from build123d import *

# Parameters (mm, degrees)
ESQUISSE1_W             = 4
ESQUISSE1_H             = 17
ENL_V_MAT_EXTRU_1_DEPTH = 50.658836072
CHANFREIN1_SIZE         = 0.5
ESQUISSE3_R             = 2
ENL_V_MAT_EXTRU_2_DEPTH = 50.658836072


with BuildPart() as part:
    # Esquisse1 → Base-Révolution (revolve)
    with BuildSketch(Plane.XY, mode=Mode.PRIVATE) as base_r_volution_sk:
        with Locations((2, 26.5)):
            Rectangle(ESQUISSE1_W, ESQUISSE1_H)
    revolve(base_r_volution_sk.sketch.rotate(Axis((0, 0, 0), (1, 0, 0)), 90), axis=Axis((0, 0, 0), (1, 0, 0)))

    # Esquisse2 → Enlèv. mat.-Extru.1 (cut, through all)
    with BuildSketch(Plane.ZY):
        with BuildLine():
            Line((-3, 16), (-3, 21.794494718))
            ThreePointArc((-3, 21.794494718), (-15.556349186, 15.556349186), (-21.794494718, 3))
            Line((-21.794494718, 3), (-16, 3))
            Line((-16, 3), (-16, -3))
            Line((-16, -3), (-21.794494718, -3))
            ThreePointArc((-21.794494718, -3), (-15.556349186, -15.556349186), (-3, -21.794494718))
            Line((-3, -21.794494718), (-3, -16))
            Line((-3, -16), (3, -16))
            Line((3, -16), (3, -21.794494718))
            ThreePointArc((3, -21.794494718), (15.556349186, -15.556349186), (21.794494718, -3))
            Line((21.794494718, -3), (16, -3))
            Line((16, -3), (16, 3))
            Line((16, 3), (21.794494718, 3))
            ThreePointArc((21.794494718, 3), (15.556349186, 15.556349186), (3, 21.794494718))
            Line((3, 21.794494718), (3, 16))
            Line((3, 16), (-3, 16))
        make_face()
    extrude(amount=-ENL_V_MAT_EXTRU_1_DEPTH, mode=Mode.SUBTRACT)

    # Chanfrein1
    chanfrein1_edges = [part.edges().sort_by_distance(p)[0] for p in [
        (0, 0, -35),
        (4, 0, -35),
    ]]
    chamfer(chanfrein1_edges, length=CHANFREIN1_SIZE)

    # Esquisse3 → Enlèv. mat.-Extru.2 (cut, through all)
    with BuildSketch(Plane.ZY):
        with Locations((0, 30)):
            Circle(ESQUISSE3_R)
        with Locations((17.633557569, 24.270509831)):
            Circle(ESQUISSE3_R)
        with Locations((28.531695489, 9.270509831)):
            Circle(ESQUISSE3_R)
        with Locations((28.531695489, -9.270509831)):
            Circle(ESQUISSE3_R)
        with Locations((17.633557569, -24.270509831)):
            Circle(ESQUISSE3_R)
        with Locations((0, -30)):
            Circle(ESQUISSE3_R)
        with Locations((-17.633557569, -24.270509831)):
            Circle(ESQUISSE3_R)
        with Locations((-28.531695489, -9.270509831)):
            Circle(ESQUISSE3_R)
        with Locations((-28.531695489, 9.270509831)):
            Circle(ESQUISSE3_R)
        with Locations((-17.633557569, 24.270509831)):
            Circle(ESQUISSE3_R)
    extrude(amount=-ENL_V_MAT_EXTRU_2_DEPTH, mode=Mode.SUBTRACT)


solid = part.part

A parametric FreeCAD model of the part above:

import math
import FreeCAD as App
import Part
import Sketcher

V = App.Vector
Q = App.Units.Quantity


def edges_at(feature, points):
    """Names of the edges that pass closest to the given points."""
    edges = feature.Shape.Edges
    near = lambda p: min(range(len(edges)), key=lambda i: edges[i].distToShape(Part.Vertex(*p))[0])
    return sorted({f"Edge{near(p) + 1}" for p in points})

doc = App.newDocument("Part")
params = doc.addObject("Spreadsheet::Sheet", "Params")
for row, (alias, value) in enumerate([
    ("sketch1_width", "4 mm"),
    ("sketch1_height", "17 mm"),
    ("revolution_angle", "360 deg"),
    ("sketch2_radius", "22 mm"),
    ("sketch2_width", "6 mm"),
    ("chamfer_size", "0.5 mm"),
    ("sketch3_diameter", "4 mm"),
], start=1):
    params.set(f"A{row}", alias)
    params.set(f"B{row}", "=" + value)
    params.setAlias(f"B{row}", alias)

body = doc.addObject("PartDesign::Body", "Body")

# Sketch on XY plane
sketch1 = doc.addObject("Sketcher::SketchObject", "Sketch")
body.addObject(sketch1)
sketch1.AttachmentSupport = (doc.XY_Plane, [""])
sketch1.MapMode = "FlatFace"
sketch1.addGeometry(Part.LineSegment(V(0, 35, 0), V(0, 18, 0)), False)
sketch1.addGeometry(Part.LineSegment(V(0, 18, 0), V(4, 18, 0)), False)
sketch1.addGeometry(Part.LineSegment(V(4, 18, 0), V(4, 35, 0)), False)
sketch1.addGeometry(Part.LineSegment(V(4, 35, 0), V(0, 35, 0)), False)
sketch1.addConstraint(Sketcher.Constraint("Coincident", 0, 2, 1, 1))
sketch1.addConstraint(Sketcher.Constraint("Coincident", 1, 2, 2, 1))
sketch1.addConstraint(Sketcher.Constraint("Coincident", 2, 2, 3, 1))
sketch1.addConstraint(Sketcher.Constraint("Coincident", 3, 2, 0, 1))
sketch1.addConstraint(Sketcher.Constraint("Vertical", 0))
sketch1.addConstraint(Sketcher.Constraint("Horizontal", 1))
sketch1.addConstraint(Sketcher.Constraint("Vertical", 2))
sketch1.addConstraint(Sketcher.Constraint("Horizontal", 3))
sketch1.addConstraint(Sketcher.Constraint("PointOnObject", 0, 2, -2))
sketch1.addConstraint(Sketcher.Constraint("DistanceX", 1, 1, 1, 2, Q("4 mm")))
sketch1.addConstraint(Sketcher.Constraint("DistanceY", 0, 2, 0, 1, Q("17 mm")))
sketch1.addConstraint(Sketcher.Constraint("DistanceY", -1, 1, 0, 2, Q("18 mm")))
sketch1.setExpression("Constraints[9]", "Params.sketch1_width")
sketch1.setExpression("Constraints[10]", "Params.sketch1_height")
revolution = doc.addObject("PartDesign::Revolution", "Revolution")
body.addObject(revolution)
revolution.Profile = sketch1
revolution.ReferenceAxis = (sketch1, ["H_Axis"])
revolution.setExpression("Angle", "Params.revolution_angle")

# Sketch on YZ plane
sketch2 = doc.addObject("Sketcher::SketchObject", "Sketch001")
body.addObject(sketch2)
sketch2.AttachmentSupport = (doc.YZ_Plane, [""])
sketch2.MapMode = "FlatFace"
sketch2.addGeometry(Part.LineSegment(V(16, -3, 0), V(22, -3, 0)), False)
sketch2.addGeometry(Part.ArcOfCircle(Part.Circle(V(0, 0, 0), V(0, 0, 1), 22), math.radians(-82), math.radians(-8)), False)
sketch2.addGeometry(Part.LineSegment(V(3, -22, 0), V(3, -16, 0)), False)
sketch2.addGeometry(Part.LineSegment(V(3, -16, 0), V(-3, -16, 0)), False)
sketch2.addGeometry(Part.LineSegment(V(-3, -16, 0), V(-3, -22, 0)), False)
sketch2.addGeometry(Part.ArcOfCircle(Part.Circle(V(0, 0, 0), V(0, 0, 1), 22), math.radians(-172), math.radians(-98)), False)
sketch2.addGeometry(Part.LineSegment(V(-22, -3, 0), V(-16, -3, 0)), False)
sketch2.addGeometry(Part.LineSegment(V(-16, -3, 0), V(-16, 3, 0)), False)
sketch2.addGeometry(Part.LineSegment(V(-16, 3, 0), V(-22, 3, 0)), False)
sketch2.addGeometry(Part.ArcOfCircle(Part.Circle(V(0, 0, 0), V(0, 0, 1), 22), math.radians(98), math.radians(172)), False)
sketch2.addGeometry(Part.LineSegment(V(-3, 22, 0), V(-3, 16, 0)), False)
sketch2.addGeometry(Part.LineSegment(V(-3, 16, 0), V(3, 16, 0)), False)
sketch2.addGeometry(Part.LineSegment(V(3, 16, 0), V(3, 22, 0)), False)
sketch2.addGeometry(Part.ArcOfCircle(Part.Circle(V(0, 0, 0), V(0, 0, 1), 22), math.radians(8), math.radians(82)), False)
sketch2.addGeometry(Part.LineSegment(V(22, 3, 0), V(16, 3, 0)), False)
sketch2.addGeometry(Part.LineSegment(V(16, 3, 0), V(16, -3, 0)), False)
sketch2.addConstraint(Sketcher.Constraint("Coincident", 0, 2, 1, 2))
sketch2.addConstraint(Sketcher.Constraint("Coincident", 1, 1, 2, 1))
sketch2.addConstraint(Sketcher.Constraint("Coincident", 2, 2, 3, 1))
sketch2.addConstraint(Sketcher.Constraint("Coincident", 3, 2, 4, 1))
sketch2.addConstraint(Sketcher.Constraint("Coincident", 4, 2, 5, 2))
sketch2.addConstraint(Sketcher.Constraint("Coincident", 5, 1, 6, 1))
sketch2.addConstraint(Sketcher.Constraint("Coincident", 6, 2, 7, 1))
sketch2.addConstraint(Sketcher.Constraint("Coincident", 7, 2, 8, 1))
sketch2.addConstraint(Sketcher.Constraint("Coincident", 8, 2, 9, 2))
sketch2.addConstraint(Sketcher.Constraint("Coincident", 9, 1, 10, 1))
sketch2.addConstraint(Sketcher.Constraint("Coincident", 10, 2, 11, 1))
sketch2.addConstraint(Sketcher.Constraint("Coincident", 11, 2, 12, 1))
sketch2.addConstraint(Sketcher.Constraint("Coincident", 12, 2, 13, 2))
sketch2.addConstraint(Sketcher.Constraint("Coincident", 13, 1, 14, 1))
sketch2.addConstraint(Sketcher.Constraint("Coincident", 14, 2, 15, 1))
sketch2.addConstraint(Sketcher.Constraint("Coincident", 15, 2, 0, 1))
sketch2.addConstraint(Sketcher.Constraint("Horizontal", 0))
sketch2.addConstraint(Sketcher.Constraint("Vertical", 2))
sketch2.addConstraint(Sketcher.Constraint("Horizontal", 3))
sketch2.addConstraint(Sketcher.Constraint("Vertical", 4))
sketch2.addConstraint(Sketcher.Constraint("Horizontal", 6))
sketch2.addConstraint(Sketcher.Constraint("Vertical", 7))
sketch2.addConstraint(Sketcher.Constraint("Horizontal", 8))
sketch2.addConstraint(Sketcher.Constraint("Vertical", 10))
sketch2.addConstraint(Sketcher.Constraint("Horizontal", 11))
sketch2.addConstraint(Sketcher.Constraint("Vertical", 12))
sketch2.addConstraint(Sketcher.Constraint("Horizontal", 14))
sketch2.addConstraint(Sketcher.Constraint("Vertical", 15))
sketch2.addConstraint(Sketcher.Constraint("Coincident", 1, 3, -1, 1))
sketch2.addConstraint(Sketcher.Constraint("Coincident", 5, 3, -1, 1))
sketch2.addConstraint(Sketcher.Constraint("Coincident", 9, 3, -1, 1))
sketch2.addConstraint(Sketcher.Constraint("Coincident", 13, 3, -1, 1))
sketch2.addConstraint(Sketcher.Constraint("Equal", 1, 5))
sketch2.addConstraint(Sketcher.Constraint("Equal", 5, 9))
sketch2.addConstraint(Sketcher.Constraint("Equal", 9, 13))
sketch2.addConstraint(Sketcher.Constraint("Symmetric", 2, 2, 10, 2, -1, 1))
sketch2.addConstraint(Sketcher.Constraint("Symmetric", 6, 2, 14, 2, -1, 1))
sketch2.addConstraint(Sketcher.Constraint("Horizontal", 1, 1, 4, 2))
sketch2.addConstraint(Sketcher.Constraint("Horizontal", 0, 2, 5, 1))
sketch2.addConstraint(Sketcher.Constraint("Horizontal", 9, 1, 12, 2))
sketch2.addConstraint(Sketcher.Constraint("Horizontal", 8, 2, 13, 1))
sketch2.addConstraint(Sketcher.Constraint("Equal", 14, 2))
sketch2.addConstraint(Sketcher.Constraint("Equal", 11, 7))
sketch2.addConstraint(Sketcher.Constraint("Radius", 1, Q("22 mm")))
sketch2.addConstraint(Sketcher.Constraint("DistanceX", 3, 2, 3, 1, Q("6 mm")))
sketch2.addConstraint(Sketcher.Constraint("DistanceY", 2, 2, -1, 1, Q("16 mm")))
sketch2.setExpression("Constraints[43]", "Params.sketch2_radius")
sketch2.setExpression("Constraints[44]", "Params.sketch2_width")
pocket1 = doc.addObject("PartDesign::Pocket", "Pocket")
body.addObject(pocket1)
pocket1.Profile = sketch2
pocket1.Type = "ThroughAll"
pocket1.Reversed = True
doc.recompute()

chamfer = doc.addObject("PartDesign::Chamfer", "Chamfer")
body.addObject(chamfer)
chamfer.Base = (pocket1, edges_at(pocket1, [(0, 0, -35), (4, 0, -35)]))
chamfer.setExpression("Size", "Params.chamfer_size")

# Sketch on YZ plane
sketch3 = doc.addObject("Sketcher::SketchObject", "Sketch002")
body.addObject(sketch3)
sketch3.AttachmentSupport = (doc.YZ_Plane, [""])
sketch3.MapMode = "FlatFace"
sketch3.addGeometry(Part.Circle(V(30, 0, 0), V(0, 0, 1), 2), False)
sketch3.addGeometry(Part.Circle(V(24.3, 17.6, 0), V(0, 0, 1), 2), False)
sketch3.addGeometry(Part.Circle(V(9.3, 28.5, 0), V(0, 0, 1), 2), False)
sketch3.addGeometry(Part.Circle(V(-9.3, 28.5, 0), V(0, 0, 1), 2), False)
sketch3.addGeometry(Part.Circle(V(-24.3, 17.6, 0), V(0, 0, 1), 2), False)
sketch3.addGeometry(Part.Circle(V(-30, 0, 0), V(0, 0, 1), 2), False)
sketch3.addGeometry(Part.Circle(V(-24.3, -17.6, 0), V(0, 0, 1), 2), False)
sketch3.addGeometry(Part.Circle(V(-9.3, -28.5, 0), V(0, 0, 1), 2), False)
sketch3.addGeometry(Part.Circle(V(9.3, -28.5, 0), V(0, 0, 1), 2), False)
sketch3.addGeometry(Part.Circle(V(24.3, -17.6, 0), V(0, 0, 1), 2), False)
sketch3.addConstraint(Sketcher.Constraint("Equal", 0, 1))
sketch3.addConstraint(Sketcher.Constraint("Equal", 1, 2))
sketch3.addConstraint(Sketcher.Constraint("Equal", 2, 3))
sketch3.addConstraint(Sketcher.Constraint("Equal", 3, 4))
sketch3.addConstraint(Sketcher.Constraint("Equal", 4, 5))
sketch3.addConstraint(Sketcher.Constraint("Equal", 5, 6))
sketch3.addConstraint(Sketcher.Constraint("Equal", 6, 7))
sketch3.addConstraint(Sketcher.Constraint("Equal", 7, 8))
sketch3.addConstraint(Sketcher.Constraint("Equal", 8, 9))
sketch3.addConstraint(Sketcher.Constraint("Symmetric", 0, 3, 5, 3, -1, 1))
sketch3.addConstraint(Sketcher.Constraint("Symmetric", 1, 3, 6, 3, -1, 1))
sketch3.addConstraint(Sketcher.Constraint("Symmetric", 2, 3, 7, 3, -1, 1))
sketch3.addConstraint(Sketcher.Constraint("Symmetric", 3, 3, 8, 3, -1, 1))
sketch3.addConstraint(Sketcher.Constraint("Symmetric", 4, 3, 9, 3, -1, 1))
sketch3.addConstraint(Sketcher.Constraint("Symmetric", 2, 3, 3, 3, -2))
sketch3.addConstraint(Sketcher.Constraint("Symmetric", 1, 3, 4, 3, -2))
sketch3.addConstraint(Sketcher.Constraint("PointOnObject", 0, 3, -1))
sketch3.addConstraint(Sketcher.Constraint("Diameter", 0, Q("4 mm")))
sketch3.addConstraint(Sketcher.Constraint("DistanceX", -1, 1, 0, 3, Q("30 mm")))
sketch3.addConstraint(Sketcher.Constraint("DistanceX", 2, 3, 1, 3, Q("15 mm")))
sketch3.addConstraint(Sketcher.Constraint("DistanceX", -1, 1, 1, 3, Q("24.27051 mm")))
sketch3.addConstraint(Sketcher.Constraint("DistanceY", -1, 1, 1, 3, Q("17.633558 mm")))
sketch3.addConstraint(Sketcher.Constraint("DistanceY", -1, 1, 2, 3, Q("28.531695 mm")))
sketch3.setExpression("Constraints[17]", "Params.sketch3_diameter")
pocket2 = doc.addObject("PartDesign::Pocket", "Pocket001")
body.addObject(pocket2)
pocket2.Profile = sketch3
pocket2.Type = "ThroughAll"
pocket2.Reversed = True

doc.recompute()
